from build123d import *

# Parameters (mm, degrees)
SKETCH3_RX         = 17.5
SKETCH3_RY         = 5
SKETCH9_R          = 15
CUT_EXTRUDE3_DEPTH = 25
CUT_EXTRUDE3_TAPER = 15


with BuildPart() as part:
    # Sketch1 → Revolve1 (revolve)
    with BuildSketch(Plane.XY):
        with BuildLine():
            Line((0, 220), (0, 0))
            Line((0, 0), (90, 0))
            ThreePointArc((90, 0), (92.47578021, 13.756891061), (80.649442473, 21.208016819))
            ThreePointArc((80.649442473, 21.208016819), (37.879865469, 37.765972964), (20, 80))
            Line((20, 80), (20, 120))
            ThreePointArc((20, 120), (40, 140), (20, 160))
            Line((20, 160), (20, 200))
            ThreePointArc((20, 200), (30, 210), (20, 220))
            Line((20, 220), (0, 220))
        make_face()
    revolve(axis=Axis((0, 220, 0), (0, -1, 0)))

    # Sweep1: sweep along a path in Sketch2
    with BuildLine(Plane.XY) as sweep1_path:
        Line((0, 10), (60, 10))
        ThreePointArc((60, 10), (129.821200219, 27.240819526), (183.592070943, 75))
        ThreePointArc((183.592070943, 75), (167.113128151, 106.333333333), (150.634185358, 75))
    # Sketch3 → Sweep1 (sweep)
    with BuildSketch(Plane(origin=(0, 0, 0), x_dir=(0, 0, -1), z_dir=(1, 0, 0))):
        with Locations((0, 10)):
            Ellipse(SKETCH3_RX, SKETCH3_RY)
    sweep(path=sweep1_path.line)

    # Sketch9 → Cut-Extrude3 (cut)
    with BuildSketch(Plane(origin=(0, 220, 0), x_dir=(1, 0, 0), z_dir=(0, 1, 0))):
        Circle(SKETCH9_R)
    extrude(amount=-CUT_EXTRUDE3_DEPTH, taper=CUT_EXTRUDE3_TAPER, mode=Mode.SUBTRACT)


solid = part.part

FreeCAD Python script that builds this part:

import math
import FreeCAD as App
import Part
import Sketcher
from FreeCAD import Vector

doc = App.newDocument("Part")
body = doc.addObject("PartDesign::Body", "Body")

sketch1 = body.newObject("Sketcher::SketchObject", "Sketch")
sketch1.AttachmentSupport = (doc.getObject("XY_Plane"), [""])
sketch1.MapMode = "FlatFace"
sketch1.addGeometry([
    Part.LineSegment(Vector(0, 220, 0), Vector(0, 0, 0)),
    Part.LineSegment(Vector(0, 0, 0), Vector(90, 0, 0)),
    Part.ArcOfCircle(Part.Circle(Vector(81.038129, 8.714061, 0), Vector(0, 0, 1), 12.5), math.radians(-44.196788), math.radians(91.781894)),
    Part.ArcOfCircle(Part.Circle(Vector(78.820427, 80, 0), Vector(0, 0, 1), 58.820427), math.radians(180), math.radians(271.781894)),
    Part.LineSegment(Vector(20, 80, 0), Vector(20, 120, 0)),
    Part.ArcOfCircle(Part.Circle(Vector(20, 140, 0), Vector(0, 0, 1), 20), math.radians(-90), math.radians(90)),
    Part.LineSegment(Vector(20, 160, 0), Vector(20, 200, 0)),
    Part.ArcOfCircle(Part.Circle(Vector(20, 210, 0), Vector(0, 0, 1), 10), math.radians(-90), math.radians(90)),
    Part.LineSegment(Vector(20, 220, 0), Vector(0, 220, 0)),
], False)
sketch1.addConstraint([
    Sketcher.Constraint("Coincident", 0, 2, 1, 1),
    Sketcher.Constraint("Coincident", 1, 2, 2, 1),
    Sketcher.Constraint("Tangent", 2, 2, 3, 2),
    Sketcher.Constraint("Tangent", 3, 1, 4, 1),
    Sketcher.Constraint("Coincident", 4, 2, 5, 1),
    Sketcher.Constraint("Coincident", 5, 2, 6, 1),
    Sketcher.Constraint("Coincident", 6, 2, 7, 1),
    Sketcher.Constraint("Tangent", 7, 2, 8, 1),
    Sketcher.Constraint("Coincident", 8, 2, 0, 1),
    Sketcher.Constraint("Vertical", 0),
    Sketcher.Constraint("Horizontal", 1),
    Sketcher.Constraint("Vertical", 4),
    Sketcher.Constraint("Vertical", 6),
    Sketcher.Constraint("Horizontal", 8),
    Sketcher.Constraint("Coincident", 0, 2, -1, 1),
    Sketcher.Constraint("Vertical", 5, 3, 7, 3),
    Sketcher.Constraint("Vertical", 7, 3, 3, 1),
    Sketcher.Constraint("Vertical", 4, 2, 5, 2),
    Sketcher.Constraint("Equal", 4, 6),
    Sketcher.Constraint("Radius", 5, 20.0),
    Sketcher.Constraint("Radius", 7, 10.0),
    Sketcher.Constraint("Radius", 2, 12.5),
    Sketcher.Constraint("DistanceX", 1, 1, 1, 2, 90.0),
    Sketcher.Constraint("DistanceX", 8, 2, 8, 1, 20.0),
    Sketcher.Constraint("DistanceY", 0, 2, 0, 1, 220.0),
    Sketcher.Constraint("DistanceY", 4, 1, 4, 2, 40.0),
    Sketcher.Constraint("Radius", 3, 58.820427),
])
revolution = body.newObject("PartDesign::Revolution", "Revolution")
revolution.Profile = sketch1
revolution.ReferenceAxis = (sketch1, ["V_Axis"])
revolution.Angle = 360

sketch2 = body.newObject("Sketcher::SketchObject", "Sketch001")
sketch2.AttachmentSupport = (doc.getObject("YZ_Plane"), [""])
sketch2.MapMode = "FlatFace"
sketch2.addGeometry(Part.Ellipse(Vector(10, -17.5, 0), Vector(15, 0, 0), Vector(10, 0, 0)), False)
sketch2.addConstraint(Sketcher.Constraint("Block", 0))

sketch3 = body.newObject("Sketcher::SketchObject", "Sketch002")
sketch3.AttachmentSupport = (doc.getObject("XY_Plane"), [""])
sketch3.MapMode = "FlatFace"
sketch3.addGeometry([
    Part.LineSegment(Vector(0, 10, 0), Vector(60, 10, 0)),
    Part.ArcOfCircle(Part.Circle(Vector(60, 160, 0), Vector(0, 0, 1), 150), math.radians(-90), math.radians(-34.518108)),
    Part.ArcOfCircle(Part.Circle(Vector(167.113128, 86.333333, 0), Vector(0, 0, 1), 20), math.radians(-34.518108), math.radians(214.518108)),
], False)
sketch3.addConstraint([
    Sketcher.Constraint("Tangent", 0, 2, 1, 1),
    Sketcher.Constraint("Tangent", 1, 2, 2, 1),
    Sketcher.Constraint("Horizontal", 0),
    Sketcher.Constraint("PointOnObject", 0, 1, -2),
    Sketcher.Constraint("Horizontal", 1, 2, 2, 2),
    Sketcher.Constraint("Radius", 1, 150.0),
    Sketcher.Constraint("Radius", 2, 20.0),
    Sketcher.Constraint("DistanceX", 0, 1, 0, 2, 60.0),
    Sketcher.Constraint("DistanceY", -1, 1, 1, 3, 160.0),
    Sketcher.Constraint("DistanceY", -1, 1, 1, 2, 75.0),
])
doc.recompute()

additivepipe = body.newObject("PartDesign::AdditivePipe", "AdditivePipe")
additivepipe.Profile = sketch2
additivepipe.Spine = (sketch3, ["Edge1", "Edge2", "Edge3"])

sketch4 = body.newObject("Sketcher::SketchObject", "Sketch003")
sketch4.AttachmentSupport = (doc.getObject("XZ_Plane"), [""])
sketch4.MapMode = "FlatFace"
sketch4.AttachmentOffset = App.Placement(Vector(0, 0, -220), App.Rotation())
sketch4.addGeometry(Part.Circle(Vector(0, 0, 0), Vector(0, 0, 1), 15), False)
sketch4.addConstraint([
    Sketcher.Constraint("Coincident", 0, 3, -1, 1),
    Sketcher.Constraint("Diameter", 0, 30.0),
])
pocket1 = body.newObject("PartDesign::Pocket", "Pocket")
pocket1.Profile = sketch4
pocket1.Length = 25
pocket1.Reversed = True
pocket1.TaperAngle = -15

doc.recompute()
